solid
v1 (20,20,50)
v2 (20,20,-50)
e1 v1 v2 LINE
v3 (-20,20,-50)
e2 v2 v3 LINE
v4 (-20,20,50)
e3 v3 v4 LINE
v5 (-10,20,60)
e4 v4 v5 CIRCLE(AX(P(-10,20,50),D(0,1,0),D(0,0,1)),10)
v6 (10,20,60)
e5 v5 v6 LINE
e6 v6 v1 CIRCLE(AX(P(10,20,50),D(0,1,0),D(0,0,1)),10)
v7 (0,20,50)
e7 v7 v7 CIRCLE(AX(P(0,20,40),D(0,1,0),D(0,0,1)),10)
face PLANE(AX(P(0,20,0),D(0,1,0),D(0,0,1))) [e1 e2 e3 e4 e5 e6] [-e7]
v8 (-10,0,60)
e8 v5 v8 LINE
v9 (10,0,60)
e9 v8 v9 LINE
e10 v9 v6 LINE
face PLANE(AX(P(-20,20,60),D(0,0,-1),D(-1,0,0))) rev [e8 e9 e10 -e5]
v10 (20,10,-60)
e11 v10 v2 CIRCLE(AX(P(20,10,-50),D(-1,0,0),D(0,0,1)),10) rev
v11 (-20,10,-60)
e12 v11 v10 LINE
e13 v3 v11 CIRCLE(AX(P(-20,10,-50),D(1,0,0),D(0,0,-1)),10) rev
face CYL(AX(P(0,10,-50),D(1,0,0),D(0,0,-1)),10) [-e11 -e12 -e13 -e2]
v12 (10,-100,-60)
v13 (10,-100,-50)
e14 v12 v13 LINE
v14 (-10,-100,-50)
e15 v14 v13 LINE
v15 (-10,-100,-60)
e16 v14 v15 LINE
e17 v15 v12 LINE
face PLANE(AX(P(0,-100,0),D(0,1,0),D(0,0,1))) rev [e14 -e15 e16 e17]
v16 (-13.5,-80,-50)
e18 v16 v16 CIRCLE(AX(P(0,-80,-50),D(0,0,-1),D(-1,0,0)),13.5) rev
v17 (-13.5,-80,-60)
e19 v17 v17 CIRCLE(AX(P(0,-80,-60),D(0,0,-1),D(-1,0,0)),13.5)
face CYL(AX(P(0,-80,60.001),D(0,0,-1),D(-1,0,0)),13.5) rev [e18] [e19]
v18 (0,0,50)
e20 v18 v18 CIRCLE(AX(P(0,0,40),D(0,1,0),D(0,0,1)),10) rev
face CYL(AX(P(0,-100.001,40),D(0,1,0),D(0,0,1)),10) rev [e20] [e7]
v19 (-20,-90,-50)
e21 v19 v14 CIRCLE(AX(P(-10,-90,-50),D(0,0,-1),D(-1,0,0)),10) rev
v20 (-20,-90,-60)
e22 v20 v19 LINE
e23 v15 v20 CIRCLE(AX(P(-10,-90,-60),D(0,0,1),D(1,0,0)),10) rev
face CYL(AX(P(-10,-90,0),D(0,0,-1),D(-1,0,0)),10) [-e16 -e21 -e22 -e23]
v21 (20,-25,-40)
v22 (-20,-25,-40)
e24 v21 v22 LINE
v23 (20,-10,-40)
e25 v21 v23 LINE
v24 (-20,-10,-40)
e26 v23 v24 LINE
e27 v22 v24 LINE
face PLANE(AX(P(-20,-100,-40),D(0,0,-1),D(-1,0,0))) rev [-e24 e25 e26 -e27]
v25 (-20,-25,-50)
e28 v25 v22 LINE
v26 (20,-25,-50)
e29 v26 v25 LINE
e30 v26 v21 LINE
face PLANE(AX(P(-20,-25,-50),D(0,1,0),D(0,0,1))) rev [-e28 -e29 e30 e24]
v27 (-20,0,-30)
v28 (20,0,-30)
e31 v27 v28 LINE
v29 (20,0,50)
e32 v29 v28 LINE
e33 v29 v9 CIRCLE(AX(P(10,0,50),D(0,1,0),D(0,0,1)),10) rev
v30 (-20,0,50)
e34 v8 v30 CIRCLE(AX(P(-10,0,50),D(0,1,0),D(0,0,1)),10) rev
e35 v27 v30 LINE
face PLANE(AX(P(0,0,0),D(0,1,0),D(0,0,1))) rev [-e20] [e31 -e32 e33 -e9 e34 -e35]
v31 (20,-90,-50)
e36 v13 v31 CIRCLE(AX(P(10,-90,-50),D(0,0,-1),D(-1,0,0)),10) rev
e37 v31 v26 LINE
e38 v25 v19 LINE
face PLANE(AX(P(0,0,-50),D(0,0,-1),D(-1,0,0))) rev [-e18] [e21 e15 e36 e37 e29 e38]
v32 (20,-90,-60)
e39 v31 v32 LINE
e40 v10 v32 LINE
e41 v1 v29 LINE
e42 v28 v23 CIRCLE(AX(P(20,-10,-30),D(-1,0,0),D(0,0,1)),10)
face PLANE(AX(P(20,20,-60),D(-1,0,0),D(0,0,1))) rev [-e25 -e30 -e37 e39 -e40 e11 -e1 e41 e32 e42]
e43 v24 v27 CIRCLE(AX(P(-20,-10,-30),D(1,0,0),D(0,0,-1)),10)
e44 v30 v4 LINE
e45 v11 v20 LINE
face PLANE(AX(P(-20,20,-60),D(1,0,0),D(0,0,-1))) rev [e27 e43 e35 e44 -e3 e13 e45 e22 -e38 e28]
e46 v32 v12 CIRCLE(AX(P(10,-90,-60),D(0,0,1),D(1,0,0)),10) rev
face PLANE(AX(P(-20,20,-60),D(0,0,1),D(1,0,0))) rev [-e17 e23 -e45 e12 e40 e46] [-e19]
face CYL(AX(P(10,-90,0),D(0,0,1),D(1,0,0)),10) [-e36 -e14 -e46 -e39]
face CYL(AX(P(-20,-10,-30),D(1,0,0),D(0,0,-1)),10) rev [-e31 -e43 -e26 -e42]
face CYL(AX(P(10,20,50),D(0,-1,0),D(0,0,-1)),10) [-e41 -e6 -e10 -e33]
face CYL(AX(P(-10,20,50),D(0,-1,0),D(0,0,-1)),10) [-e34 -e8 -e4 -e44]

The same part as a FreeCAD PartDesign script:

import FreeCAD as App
import Part
import Sketcher

V = App.Vector


def edges_at(feature, points):
    """Names of the edges that pass closest to the given points."""
    edges = feature.Shape.Edges
    near = lambda p: min(range(len(edges)), key=lambda i: edges[i].distToShape(Part.Vertex(*p))[0])
    return sorted({f"Edge{near(p) + 1}" for p in points})

doc = App.newDocument("Part")
body = doc.addObject("PartDesign::Body", "Body")

sketch1 = doc.addObject("Sketcher::SketchObject", "Sketch")
body.addObject(sketch1)
sketch1.AttachmentSupport = (doc.XZ_Plane, [""])
sketch1.MapMode = "FlatFace"
sketch1.addGeometry([
    Part.LineSegment(V(-20, -60, 0), V(-20, 60, 0)),
    Part.LineSegment(V(-20, 60, 0), V(20, 60, 0)),
    Part.LineSegment(V(20, 60, 0), V(20, -60, 0)),
    Part.LineSegment(V(20, -60, 0), V(-20, -60, 0)),
], False)
sketch1.addConstraint([
    Sketcher.Constraint("Coincident", 0, 2, 1, 1),
    Sketcher.Constraint("Coincident", 1, 2, 2, 1),
    Sketcher.Constraint("Coincident", 2, 2, 3, 1),
    Sketcher.Constraint("Coincident", 3, 2, 0, 1),
    Sketcher.Constraint("Vertical", 0),
    Sketcher.Constraint("Horizontal", 1),
    Sketcher.Constraint("Vertical", 2),
    Sketcher.Constraint("Horizontal", 3),
    Sketcher.Constraint("Symmetric", 0, 2, 2, 2, -1, 1),
    Sketcher.Constraint("DistanceX", 1, 1, 1, 2, 40.0),
    Sketcher.Constraint("DistanceY", 0, 1, 0, 2, 120.0),
])
pad1 = doc.addObject("PartDesign::Pad", "Pad")
body.addObject(pad1)
pad1.Profile = sketch1
pad1.Length = 20
pad1.Reversed = True

sketch2 = doc.addObject("Sketcher::SketchObject", "Sketch001")
body.addObject(sketch2)
sketch2.AttachmentSupport = (doc.XZ_Plane, [""])
sketch2.MapMode = "FlatFace"
sketch2.addGeometry([
    Part.LineSegment(V(-20, -40, 0), V(-20, -60, 0)),
    Part.LineSegment(V(-20, -60, 0), V(20, -60, 0)),
    Part.LineSegment(V(20, -60, 0), V(20, -40, 0)),
    Part.LineSegment(V(20, -40, 0), V(-20, -40, 0)),
], False)
sketch2.addConstraint([
    Sketcher.Constraint("Coincident", 0, 2, 1, 1),
    Sketcher.Constraint("Coincident", 1, 2, 2, 1),
    Sketcher.Constraint("Coincident", 2, 2, 3, 1),
    Sketcher.Constraint("Coincident", 3, 2, 0, 1),
    Sketcher.Constraint("Vertical", 0),
    Sketcher.Constraint("Horizontal", 1),
    Sketcher.Constraint("Vertical", 2),
    Sketcher.Constraint("Horizontal", 3),
    Sketcher.Constraint("DistanceX", 1, 1, 1, 2, 40.0),
    Sketcher.Constraint("DistanceY", 0, 2, 0, 1, 20.0),
    Sketcher.Constraint("DistanceX", 0, 2, -1, 1, 20.0),
    Sketcher.Constraint("DistanceY", 0, 2, -1, 1, 60.0),
])
pad2 = doc.addObject("PartDesign::Pad", "Pad001")
body.addObject(pad2)
pad2.Profile = sketch2
pad2.Length = 100

sketch3 = doc.addObject("Sketcher::SketchObject", "Sketch002")
body.addObject(sketch3)
sketch3.AttachmentSupport = (doc.XY_Plane, [""])
sketch3.MapMode = "FlatFace"
sketch3.AttachmentOffset = App.Placement(V(0, 0, -40), App.Rotation())
sketch3.addGeometry([
    Part.LineSegment(V(-20, -25, 0), V(-20, -100, 0)),
    Part.LineSegment(V(-20, -100, 0), V(20, -100, 0)),
    Part.LineSegment(V(20, -100, 0), V(20, -25, 0)),
    Part.LineSegment(V(20, -25, 0), V(-20, -25, 0)),
], False)
sketch3.addConstraint([
    Sketcher.Constraint("Coincident", 0, 2, 1, 1),
    Sketcher.Constraint("Coincident", 1, 2, 2, 1),
    Sketcher.Constraint("Coincident", 2, 2, 3, 1),
    Sketcher.Constraint("Coincident", 3, 2, 0, 1),
    Sketcher.Constraint("Vertical", 0),
    Sketcher.Constraint("Horizontal", 1),
    Sketcher.Constraint("Vertical", 2),
    Sketcher.Constraint("Horizontal", 3),
    Sketcher.Constraint("DistanceX", 1, 1, 1, 2, 40.0),
    Sketcher.Constraint("DistanceY", 0, 2, 0, 1, 75.0),
    Sketcher.Constraint("DistanceX", 0, 2, -1, 1, 20.0),
    Sketcher.Constraint("DistanceY", 0, 2, -1, 1, 100.0),
])
pocket1 = doc.addObject("PartDesign::Pocket", "Pocket")
body.addObject(pocket1)
pocket1.Profile = sketch3
pocket1.Length = 10
doc.recompute()

fillet = doc.addObject("PartDesign::Fillet", "Fillet")
body.addObject(fillet)
fillet.Base = (pocket1, edges_at(pocket1, [
    (20, 10, 60),
    (-20, 10, 60),
    (20, -100, -55),
    (-20, -100, -55),
    (0, 20, -60),
]))
fillet.Radius = 10

sketch4 = doc.addObject("Sketcher::SketchObject", "Sketch003")
body.addObject(sketch4)
sketch4.AttachmentSupport = (doc.XY_Plane, [""])
sketch4.MapMode = "FlatFace"
sketch4.AttachmentOffset = App.Placement(V(0, 0, -60), App.Rotation())
sketch4.addGeometry(Part.Circle(V(0, -80, 0), V(0, 0, 1), 14), False)
sketch4.addConstraint([
    Sketcher.Constraint("PointOnObject", 0, 3, -2),
    Sketcher.Constraint("Diameter", 0, 27.0),
    Sketcher.Constraint("DistanceY", 0, 3, -1, 1, 80.0),
])
pocket2 = doc.addObject("PartDesign::Pocket", "Pocket001")
body.addObject(pocket2)
pocket2.Profile = sketch4
pocket2.Type = "UpToFirst"
pocket2.Reversed = True

sketch5 = doc.addObject("Sketcher::SketchObject", "Sketch004")
body.addObject(sketch5)
sketch5.AttachmentSupport = (doc.XZ_Plane, [""])
sketch5.MapMode = "FlatFace"
sketch5.AttachmentOffset = App.Placement(V(0, 0, -20), App.Rotation())
sketch5.addGeometry(Part.Circle(V(0, 40, 0), V(0, 0, 1), 10), False)
sketch5.addConstraint([
    Sketcher.Constraint("PointOnObject", 0, 3, -2),
    Sketcher.Constraint("Diameter", 0, 20.0),
    Sketcher.Constraint("DistanceY", -1, 1, 0, 3, 40.0),
])
pocket3 = doc.addObject("PartDesign::Pocket", "Pocket002")
body.addObject(pocket3)
pocket3.Profile = sketch5
pocket3.Type = "UpToFirst"
pocket3.Reversed = True
doc.recompute()

fillet2 = doc.addObject("PartDesign::Fillet", "Fillet001")
body.addObject(fillet2)
fillet2.Base = (pocket3, edges_at(pocket3, [(0, 0, -40)]))
fillet2.Radius = 10

doc.recompute()
